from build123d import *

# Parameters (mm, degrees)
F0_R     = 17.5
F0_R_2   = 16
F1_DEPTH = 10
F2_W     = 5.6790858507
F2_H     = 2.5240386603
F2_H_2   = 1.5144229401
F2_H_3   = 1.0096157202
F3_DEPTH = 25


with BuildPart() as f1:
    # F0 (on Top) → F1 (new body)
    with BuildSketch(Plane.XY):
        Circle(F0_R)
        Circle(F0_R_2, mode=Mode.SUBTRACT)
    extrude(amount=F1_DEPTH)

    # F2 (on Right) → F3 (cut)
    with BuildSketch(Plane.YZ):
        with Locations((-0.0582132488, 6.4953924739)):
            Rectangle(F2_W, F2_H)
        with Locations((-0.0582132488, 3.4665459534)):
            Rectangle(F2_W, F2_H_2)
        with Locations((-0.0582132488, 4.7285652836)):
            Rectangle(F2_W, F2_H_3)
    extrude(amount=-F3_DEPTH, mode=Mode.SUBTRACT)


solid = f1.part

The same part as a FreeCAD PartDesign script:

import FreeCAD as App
import Part
import Sketcher

V = App.Vector


def add_polygon(sketch, points):
    """Adds a closed chain of lines whose ends are joined by coincident constraints."""
    first, n = sketch.GeometryCount, len(points)
    for a, b in zip(points, points[1:] + points[:1]):
        sketch.addGeometry(Part.LineSegment(App.Vector(*a, 0), App.Vector(*b, 0)), False)
    for i in range(n):
        sketch.addConstraint(Sketcher.Constraint("Coincident", first + i, 2, first + (i + 1) % n, 1))

doc = App.newDocument("Part")
body = doc.addObject("PartDesign::Body", "Body")

# Sketch on XY plane
sketch1 = body.newObject("Sketcher::SketchObject", "Sketch")
sketch1.AttachmentSupport = (doc.getObject("XY_Plane"), [""])
sketch1.MapMode = "FlatFace"
sketch1.addGeometry([
    Part.Circle(V(0, 0, 0), V(0, 0, 1), 17.5),
    Part.Circle(V(0, 0, 0), V(0, 0, 1), 16),
], False)
sketch1.addConstraint([
    Sketcher.Constraint("Coincident", 0, 3, -1, 1),
    Sketcher.Constraint("Coincident", 1, 3, -1, 1),
    Sketcher.Constraint("Diameter", 0, 35.0),
    Sketcher.Constraint("Diameter", 1, 32.0),
])
pad1 = body.newObject("PartDesign::Pad", "Pad")
pad1.Profile = sketch1
pad1.Length = 10

# Sketch on YZ plane
sketch2 = body.newObject("Sketcher::SketchObject", "Sketch001")
sketch2.AttachmentSupport = (doc.getObject("YZ_Plane"), [""])
sketch2.MapMode = "FlatFace"
add_polygon(sketch2, [(-2.897756, 7.757412), (-2.897756, 2.709334), (2.78133, 2.709334), (2.78133, 7.757412)])  # lines 0-3
sketch2.addConstraint([
    Sketcher.Constraint("Vertical", 0),
    Sketcher.Constraint("Horizontal", 1),
    Sketcher.Constraint("Vertical", 2),
    Sketcher.Constraint("Horizontal", 3),
    Sketcher.Constraint("DistanceX", 1, 1, 1, 2, 5.679086),
    Sketcher.Constraint("DistanceY", 0, 2, 0, 1, 5.048077),
    Sketcher.Constraint("DistanceX", -1, 1, 1, 2, 2.78133),
    Sketcher.Constraint("DistanceY", -1, 1, 2, 2, 7.757412),
])
pocket1 = body.newObject("PartDesign::Pocket", "Pocket")
pocket1.Profile = sketch2
pocket1.Length = 25

doc.recompute()
